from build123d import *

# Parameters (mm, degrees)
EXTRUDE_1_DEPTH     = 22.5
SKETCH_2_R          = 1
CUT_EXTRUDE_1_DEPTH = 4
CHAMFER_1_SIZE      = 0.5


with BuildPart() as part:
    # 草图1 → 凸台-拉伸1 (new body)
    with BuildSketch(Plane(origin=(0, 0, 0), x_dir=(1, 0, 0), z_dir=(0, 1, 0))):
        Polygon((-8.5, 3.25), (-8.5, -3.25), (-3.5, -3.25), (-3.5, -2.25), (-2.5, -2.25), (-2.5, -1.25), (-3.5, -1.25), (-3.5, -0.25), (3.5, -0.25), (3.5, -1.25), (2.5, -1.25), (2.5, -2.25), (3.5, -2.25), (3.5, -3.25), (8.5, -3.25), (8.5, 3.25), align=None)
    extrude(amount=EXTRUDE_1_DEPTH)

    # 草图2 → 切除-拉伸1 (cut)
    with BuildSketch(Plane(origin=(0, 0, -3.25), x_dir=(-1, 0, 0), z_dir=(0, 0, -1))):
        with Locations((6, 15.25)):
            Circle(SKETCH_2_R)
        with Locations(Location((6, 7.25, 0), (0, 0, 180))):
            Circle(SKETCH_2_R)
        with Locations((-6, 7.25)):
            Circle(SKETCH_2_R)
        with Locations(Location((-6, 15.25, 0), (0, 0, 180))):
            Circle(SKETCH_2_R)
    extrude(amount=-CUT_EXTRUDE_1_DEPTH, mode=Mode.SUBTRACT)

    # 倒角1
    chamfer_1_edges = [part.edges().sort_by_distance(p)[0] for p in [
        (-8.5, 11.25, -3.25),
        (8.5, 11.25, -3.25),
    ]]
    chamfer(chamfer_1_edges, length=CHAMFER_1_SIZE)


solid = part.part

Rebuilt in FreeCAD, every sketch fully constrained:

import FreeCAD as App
import Part
import Sketcher

V = App.Vector


def edges_at(feature, points):
    """Names of the edges that pass closest to the given points."""
    edges = feature.Shape.Edges
    near = lambda p: min(range(len(edges)), key=lambda i: edges[i].distToShape(Part.Vertex(*p))[0])
    return sorted({f"Edge{near(p) + 1}" for p in points})


def add_polygon(sketch, points):
    """Adds a closed chain of lines whose ends are joined by coincident constraints."""
    first, n = sketch.GeometryCount, len(points)
    for a, b in zip(points, points[1:] + points[:1]):
        sketch.addGeometry(Part.LineSegment(App.Vector(*a, 0), App.Vector(*b, 0)), False)
    for i in range(n):
        sketch.addConstraint(Sketcher.Constraint("Coincident", first + i, 2, first + (i + 1) % n, 1))

doc = App.newDocument("Part")
body = doc.addObject("PartDesign::Body", "Body")

# Sketch on XZ plane
sketch1 = body.newObject("Sketcher::SketchObject", "Sketch")
sketch1.AttachmentSupport = (doc.getObject("XZ_Plane"), [""])
sketch1.MapMode = "FlatFace"
add_polygon(sketch1, [(-8.5, -3.2), (-8.5, 3.2), (-3.5, 3.2), (-3.5, 2.2), (-2.5, 2.2), (-2.5, 1.2), (-3.5, 1.2), (-3.5, 0.2), (3.5, 0.2), (3.5, 1.2), (2.5, 1.2), (2.5, 2.2), (3.5, 2.2), (3.5, 3.2), (8.5, 3.2), (8.5, -3.2)])  # lines 0-15
sketch1.addConstraint([
    Sketcher.Constraint("Vertical", 0),
    Sketcher.Constraint("Horizontal", 1),
    Sketcher.Constraint("Vertical", 2),
    Sketcher.Constraint("Horizontal", 3),
    Sketcher.Constraint("Vertical", 4),
    Sketcher.Constraint("Horizontal", 5),
    Sketcher.Constraint("Vertical", 6),
    Sketcher.Constraint("Horizontal", 7),
    Sketcher.Constraint("Vertical", 8),
    Sketcher.Constraint("Horizontal", 9),
    Sketcher.Constraint("Vertical", 10),
    Sketcher.Constraint("Horizontal", 11),
    Sketcher.Constraint("Vertical", 12),
    Sketcher.Constraint("Horizontal", 13),
    Sketcher.Constraint("Vertical", 14),
    Sketcher.Constraint("Horizontal", 15),
    Sketcher.Constraint("Symmetric", 0, 2, 14, 2, -1, 1),
    Sketcher.Constraint("Symmetric", 5, 2, 8, 2, -2),
    Sketcher.Constraint("Symmetric", 3, 2, 10, 2, -2),
    Sketcher.Constraint("Symmetric", 1, 2, 12, 2, -2),
    Sketcher.Constraint("Vertical", 2, 2, 5, 2),
    Sketcher.Constraint("Equal", 11, 2),
    Sketcher.Constraint("Equal", 2, 4),
    Sketcher.Constraint("Equal", 4, 6),
    Sketcher.Constraint("DistanceX", 1, 1, 1, 2, 5.0),
    Sketcher.Constraint("DistanceX", 3, 1, 3, 2, 1.0),
    Sketcher.Constraint("DistanceX", 7, 1, 7, 2, 7.0),
    Sketcher.Constraint("DistanceY", 0, 1, 0, 2, 6.5),
])
pad1 = body.newObject("PartDesign::Pad", "Pad")
pad1.Profile = sketch1
pad1.Length = 22.5
pad1.Reversed = True

# Sketch on XY plane
sketch2 = body.newObject("Sketcher::SketchObject", "Sketch001")
sketch2.AttachmentSupport = (doc.getObject("XY_Plane"), [""])
sketch2.MapMode = "FlatFace"
sketch2.AttachmentOffset = App.Placement(V(0, 0, -3.25), App.Rotation())
sketch2.addGeometry([
    Part.Circle(V(-6, 15.2, 0), V(0, 0, 1), 1),
    Part.Circle(V(-6, 7.2, 0), V(0, 0, 1), 1),
    Part.Circle(V(6, 7.2, 0), V(0, 0, 1), 1),
    Part.Circle(V(6, 15.2, 0), V(0, 0, 1), 1),
], False)
sketch2.addConstraint([
    Sketcher.Constraint("Equal", 0, 1),
    Sketcher.Constraint("Equal", 1, 2),
    Sketcher.Constraint("Equal", 2, 3),
    Sketcher.Constraint("Symmetric", 1, 3, 2, 3, -2),
    Sketcher.Constraint("Symmetric", 0, 3, 3, 3, -2),
    Sketcher.Constraint("Vertical", 0, 3, 1, 3),
    Sketcher.Constraint("Diameter", 0, 2.0),
    Sketcher.Constraint("DistanceX", 0, 3, -1, 1, 6.0),
    Sketcher.Constraint("DistanceY", 1, 3, 0, 3, 8.0),
    Sketcher.Constraint("DistanceY", -1, 1, 0, 3, 15.25),
])
pocket1 = body.newObject("PartDesign::Pocket", "Pocket")
pocket1.Profile = sketch2
pocket1.Length = 4
pocket1.Reversed = True
doc.recompute()

chamfer = body.newObject("PartDesign::Chamfer", "Chamfer")
chamfer.Base = (pocket1, edges_at(pocket1, [(-8.5, 11.25, -3.25), (8.5, 11.25, -3.25)]))
chamfer.Size = 0.5

doc.recompute()
